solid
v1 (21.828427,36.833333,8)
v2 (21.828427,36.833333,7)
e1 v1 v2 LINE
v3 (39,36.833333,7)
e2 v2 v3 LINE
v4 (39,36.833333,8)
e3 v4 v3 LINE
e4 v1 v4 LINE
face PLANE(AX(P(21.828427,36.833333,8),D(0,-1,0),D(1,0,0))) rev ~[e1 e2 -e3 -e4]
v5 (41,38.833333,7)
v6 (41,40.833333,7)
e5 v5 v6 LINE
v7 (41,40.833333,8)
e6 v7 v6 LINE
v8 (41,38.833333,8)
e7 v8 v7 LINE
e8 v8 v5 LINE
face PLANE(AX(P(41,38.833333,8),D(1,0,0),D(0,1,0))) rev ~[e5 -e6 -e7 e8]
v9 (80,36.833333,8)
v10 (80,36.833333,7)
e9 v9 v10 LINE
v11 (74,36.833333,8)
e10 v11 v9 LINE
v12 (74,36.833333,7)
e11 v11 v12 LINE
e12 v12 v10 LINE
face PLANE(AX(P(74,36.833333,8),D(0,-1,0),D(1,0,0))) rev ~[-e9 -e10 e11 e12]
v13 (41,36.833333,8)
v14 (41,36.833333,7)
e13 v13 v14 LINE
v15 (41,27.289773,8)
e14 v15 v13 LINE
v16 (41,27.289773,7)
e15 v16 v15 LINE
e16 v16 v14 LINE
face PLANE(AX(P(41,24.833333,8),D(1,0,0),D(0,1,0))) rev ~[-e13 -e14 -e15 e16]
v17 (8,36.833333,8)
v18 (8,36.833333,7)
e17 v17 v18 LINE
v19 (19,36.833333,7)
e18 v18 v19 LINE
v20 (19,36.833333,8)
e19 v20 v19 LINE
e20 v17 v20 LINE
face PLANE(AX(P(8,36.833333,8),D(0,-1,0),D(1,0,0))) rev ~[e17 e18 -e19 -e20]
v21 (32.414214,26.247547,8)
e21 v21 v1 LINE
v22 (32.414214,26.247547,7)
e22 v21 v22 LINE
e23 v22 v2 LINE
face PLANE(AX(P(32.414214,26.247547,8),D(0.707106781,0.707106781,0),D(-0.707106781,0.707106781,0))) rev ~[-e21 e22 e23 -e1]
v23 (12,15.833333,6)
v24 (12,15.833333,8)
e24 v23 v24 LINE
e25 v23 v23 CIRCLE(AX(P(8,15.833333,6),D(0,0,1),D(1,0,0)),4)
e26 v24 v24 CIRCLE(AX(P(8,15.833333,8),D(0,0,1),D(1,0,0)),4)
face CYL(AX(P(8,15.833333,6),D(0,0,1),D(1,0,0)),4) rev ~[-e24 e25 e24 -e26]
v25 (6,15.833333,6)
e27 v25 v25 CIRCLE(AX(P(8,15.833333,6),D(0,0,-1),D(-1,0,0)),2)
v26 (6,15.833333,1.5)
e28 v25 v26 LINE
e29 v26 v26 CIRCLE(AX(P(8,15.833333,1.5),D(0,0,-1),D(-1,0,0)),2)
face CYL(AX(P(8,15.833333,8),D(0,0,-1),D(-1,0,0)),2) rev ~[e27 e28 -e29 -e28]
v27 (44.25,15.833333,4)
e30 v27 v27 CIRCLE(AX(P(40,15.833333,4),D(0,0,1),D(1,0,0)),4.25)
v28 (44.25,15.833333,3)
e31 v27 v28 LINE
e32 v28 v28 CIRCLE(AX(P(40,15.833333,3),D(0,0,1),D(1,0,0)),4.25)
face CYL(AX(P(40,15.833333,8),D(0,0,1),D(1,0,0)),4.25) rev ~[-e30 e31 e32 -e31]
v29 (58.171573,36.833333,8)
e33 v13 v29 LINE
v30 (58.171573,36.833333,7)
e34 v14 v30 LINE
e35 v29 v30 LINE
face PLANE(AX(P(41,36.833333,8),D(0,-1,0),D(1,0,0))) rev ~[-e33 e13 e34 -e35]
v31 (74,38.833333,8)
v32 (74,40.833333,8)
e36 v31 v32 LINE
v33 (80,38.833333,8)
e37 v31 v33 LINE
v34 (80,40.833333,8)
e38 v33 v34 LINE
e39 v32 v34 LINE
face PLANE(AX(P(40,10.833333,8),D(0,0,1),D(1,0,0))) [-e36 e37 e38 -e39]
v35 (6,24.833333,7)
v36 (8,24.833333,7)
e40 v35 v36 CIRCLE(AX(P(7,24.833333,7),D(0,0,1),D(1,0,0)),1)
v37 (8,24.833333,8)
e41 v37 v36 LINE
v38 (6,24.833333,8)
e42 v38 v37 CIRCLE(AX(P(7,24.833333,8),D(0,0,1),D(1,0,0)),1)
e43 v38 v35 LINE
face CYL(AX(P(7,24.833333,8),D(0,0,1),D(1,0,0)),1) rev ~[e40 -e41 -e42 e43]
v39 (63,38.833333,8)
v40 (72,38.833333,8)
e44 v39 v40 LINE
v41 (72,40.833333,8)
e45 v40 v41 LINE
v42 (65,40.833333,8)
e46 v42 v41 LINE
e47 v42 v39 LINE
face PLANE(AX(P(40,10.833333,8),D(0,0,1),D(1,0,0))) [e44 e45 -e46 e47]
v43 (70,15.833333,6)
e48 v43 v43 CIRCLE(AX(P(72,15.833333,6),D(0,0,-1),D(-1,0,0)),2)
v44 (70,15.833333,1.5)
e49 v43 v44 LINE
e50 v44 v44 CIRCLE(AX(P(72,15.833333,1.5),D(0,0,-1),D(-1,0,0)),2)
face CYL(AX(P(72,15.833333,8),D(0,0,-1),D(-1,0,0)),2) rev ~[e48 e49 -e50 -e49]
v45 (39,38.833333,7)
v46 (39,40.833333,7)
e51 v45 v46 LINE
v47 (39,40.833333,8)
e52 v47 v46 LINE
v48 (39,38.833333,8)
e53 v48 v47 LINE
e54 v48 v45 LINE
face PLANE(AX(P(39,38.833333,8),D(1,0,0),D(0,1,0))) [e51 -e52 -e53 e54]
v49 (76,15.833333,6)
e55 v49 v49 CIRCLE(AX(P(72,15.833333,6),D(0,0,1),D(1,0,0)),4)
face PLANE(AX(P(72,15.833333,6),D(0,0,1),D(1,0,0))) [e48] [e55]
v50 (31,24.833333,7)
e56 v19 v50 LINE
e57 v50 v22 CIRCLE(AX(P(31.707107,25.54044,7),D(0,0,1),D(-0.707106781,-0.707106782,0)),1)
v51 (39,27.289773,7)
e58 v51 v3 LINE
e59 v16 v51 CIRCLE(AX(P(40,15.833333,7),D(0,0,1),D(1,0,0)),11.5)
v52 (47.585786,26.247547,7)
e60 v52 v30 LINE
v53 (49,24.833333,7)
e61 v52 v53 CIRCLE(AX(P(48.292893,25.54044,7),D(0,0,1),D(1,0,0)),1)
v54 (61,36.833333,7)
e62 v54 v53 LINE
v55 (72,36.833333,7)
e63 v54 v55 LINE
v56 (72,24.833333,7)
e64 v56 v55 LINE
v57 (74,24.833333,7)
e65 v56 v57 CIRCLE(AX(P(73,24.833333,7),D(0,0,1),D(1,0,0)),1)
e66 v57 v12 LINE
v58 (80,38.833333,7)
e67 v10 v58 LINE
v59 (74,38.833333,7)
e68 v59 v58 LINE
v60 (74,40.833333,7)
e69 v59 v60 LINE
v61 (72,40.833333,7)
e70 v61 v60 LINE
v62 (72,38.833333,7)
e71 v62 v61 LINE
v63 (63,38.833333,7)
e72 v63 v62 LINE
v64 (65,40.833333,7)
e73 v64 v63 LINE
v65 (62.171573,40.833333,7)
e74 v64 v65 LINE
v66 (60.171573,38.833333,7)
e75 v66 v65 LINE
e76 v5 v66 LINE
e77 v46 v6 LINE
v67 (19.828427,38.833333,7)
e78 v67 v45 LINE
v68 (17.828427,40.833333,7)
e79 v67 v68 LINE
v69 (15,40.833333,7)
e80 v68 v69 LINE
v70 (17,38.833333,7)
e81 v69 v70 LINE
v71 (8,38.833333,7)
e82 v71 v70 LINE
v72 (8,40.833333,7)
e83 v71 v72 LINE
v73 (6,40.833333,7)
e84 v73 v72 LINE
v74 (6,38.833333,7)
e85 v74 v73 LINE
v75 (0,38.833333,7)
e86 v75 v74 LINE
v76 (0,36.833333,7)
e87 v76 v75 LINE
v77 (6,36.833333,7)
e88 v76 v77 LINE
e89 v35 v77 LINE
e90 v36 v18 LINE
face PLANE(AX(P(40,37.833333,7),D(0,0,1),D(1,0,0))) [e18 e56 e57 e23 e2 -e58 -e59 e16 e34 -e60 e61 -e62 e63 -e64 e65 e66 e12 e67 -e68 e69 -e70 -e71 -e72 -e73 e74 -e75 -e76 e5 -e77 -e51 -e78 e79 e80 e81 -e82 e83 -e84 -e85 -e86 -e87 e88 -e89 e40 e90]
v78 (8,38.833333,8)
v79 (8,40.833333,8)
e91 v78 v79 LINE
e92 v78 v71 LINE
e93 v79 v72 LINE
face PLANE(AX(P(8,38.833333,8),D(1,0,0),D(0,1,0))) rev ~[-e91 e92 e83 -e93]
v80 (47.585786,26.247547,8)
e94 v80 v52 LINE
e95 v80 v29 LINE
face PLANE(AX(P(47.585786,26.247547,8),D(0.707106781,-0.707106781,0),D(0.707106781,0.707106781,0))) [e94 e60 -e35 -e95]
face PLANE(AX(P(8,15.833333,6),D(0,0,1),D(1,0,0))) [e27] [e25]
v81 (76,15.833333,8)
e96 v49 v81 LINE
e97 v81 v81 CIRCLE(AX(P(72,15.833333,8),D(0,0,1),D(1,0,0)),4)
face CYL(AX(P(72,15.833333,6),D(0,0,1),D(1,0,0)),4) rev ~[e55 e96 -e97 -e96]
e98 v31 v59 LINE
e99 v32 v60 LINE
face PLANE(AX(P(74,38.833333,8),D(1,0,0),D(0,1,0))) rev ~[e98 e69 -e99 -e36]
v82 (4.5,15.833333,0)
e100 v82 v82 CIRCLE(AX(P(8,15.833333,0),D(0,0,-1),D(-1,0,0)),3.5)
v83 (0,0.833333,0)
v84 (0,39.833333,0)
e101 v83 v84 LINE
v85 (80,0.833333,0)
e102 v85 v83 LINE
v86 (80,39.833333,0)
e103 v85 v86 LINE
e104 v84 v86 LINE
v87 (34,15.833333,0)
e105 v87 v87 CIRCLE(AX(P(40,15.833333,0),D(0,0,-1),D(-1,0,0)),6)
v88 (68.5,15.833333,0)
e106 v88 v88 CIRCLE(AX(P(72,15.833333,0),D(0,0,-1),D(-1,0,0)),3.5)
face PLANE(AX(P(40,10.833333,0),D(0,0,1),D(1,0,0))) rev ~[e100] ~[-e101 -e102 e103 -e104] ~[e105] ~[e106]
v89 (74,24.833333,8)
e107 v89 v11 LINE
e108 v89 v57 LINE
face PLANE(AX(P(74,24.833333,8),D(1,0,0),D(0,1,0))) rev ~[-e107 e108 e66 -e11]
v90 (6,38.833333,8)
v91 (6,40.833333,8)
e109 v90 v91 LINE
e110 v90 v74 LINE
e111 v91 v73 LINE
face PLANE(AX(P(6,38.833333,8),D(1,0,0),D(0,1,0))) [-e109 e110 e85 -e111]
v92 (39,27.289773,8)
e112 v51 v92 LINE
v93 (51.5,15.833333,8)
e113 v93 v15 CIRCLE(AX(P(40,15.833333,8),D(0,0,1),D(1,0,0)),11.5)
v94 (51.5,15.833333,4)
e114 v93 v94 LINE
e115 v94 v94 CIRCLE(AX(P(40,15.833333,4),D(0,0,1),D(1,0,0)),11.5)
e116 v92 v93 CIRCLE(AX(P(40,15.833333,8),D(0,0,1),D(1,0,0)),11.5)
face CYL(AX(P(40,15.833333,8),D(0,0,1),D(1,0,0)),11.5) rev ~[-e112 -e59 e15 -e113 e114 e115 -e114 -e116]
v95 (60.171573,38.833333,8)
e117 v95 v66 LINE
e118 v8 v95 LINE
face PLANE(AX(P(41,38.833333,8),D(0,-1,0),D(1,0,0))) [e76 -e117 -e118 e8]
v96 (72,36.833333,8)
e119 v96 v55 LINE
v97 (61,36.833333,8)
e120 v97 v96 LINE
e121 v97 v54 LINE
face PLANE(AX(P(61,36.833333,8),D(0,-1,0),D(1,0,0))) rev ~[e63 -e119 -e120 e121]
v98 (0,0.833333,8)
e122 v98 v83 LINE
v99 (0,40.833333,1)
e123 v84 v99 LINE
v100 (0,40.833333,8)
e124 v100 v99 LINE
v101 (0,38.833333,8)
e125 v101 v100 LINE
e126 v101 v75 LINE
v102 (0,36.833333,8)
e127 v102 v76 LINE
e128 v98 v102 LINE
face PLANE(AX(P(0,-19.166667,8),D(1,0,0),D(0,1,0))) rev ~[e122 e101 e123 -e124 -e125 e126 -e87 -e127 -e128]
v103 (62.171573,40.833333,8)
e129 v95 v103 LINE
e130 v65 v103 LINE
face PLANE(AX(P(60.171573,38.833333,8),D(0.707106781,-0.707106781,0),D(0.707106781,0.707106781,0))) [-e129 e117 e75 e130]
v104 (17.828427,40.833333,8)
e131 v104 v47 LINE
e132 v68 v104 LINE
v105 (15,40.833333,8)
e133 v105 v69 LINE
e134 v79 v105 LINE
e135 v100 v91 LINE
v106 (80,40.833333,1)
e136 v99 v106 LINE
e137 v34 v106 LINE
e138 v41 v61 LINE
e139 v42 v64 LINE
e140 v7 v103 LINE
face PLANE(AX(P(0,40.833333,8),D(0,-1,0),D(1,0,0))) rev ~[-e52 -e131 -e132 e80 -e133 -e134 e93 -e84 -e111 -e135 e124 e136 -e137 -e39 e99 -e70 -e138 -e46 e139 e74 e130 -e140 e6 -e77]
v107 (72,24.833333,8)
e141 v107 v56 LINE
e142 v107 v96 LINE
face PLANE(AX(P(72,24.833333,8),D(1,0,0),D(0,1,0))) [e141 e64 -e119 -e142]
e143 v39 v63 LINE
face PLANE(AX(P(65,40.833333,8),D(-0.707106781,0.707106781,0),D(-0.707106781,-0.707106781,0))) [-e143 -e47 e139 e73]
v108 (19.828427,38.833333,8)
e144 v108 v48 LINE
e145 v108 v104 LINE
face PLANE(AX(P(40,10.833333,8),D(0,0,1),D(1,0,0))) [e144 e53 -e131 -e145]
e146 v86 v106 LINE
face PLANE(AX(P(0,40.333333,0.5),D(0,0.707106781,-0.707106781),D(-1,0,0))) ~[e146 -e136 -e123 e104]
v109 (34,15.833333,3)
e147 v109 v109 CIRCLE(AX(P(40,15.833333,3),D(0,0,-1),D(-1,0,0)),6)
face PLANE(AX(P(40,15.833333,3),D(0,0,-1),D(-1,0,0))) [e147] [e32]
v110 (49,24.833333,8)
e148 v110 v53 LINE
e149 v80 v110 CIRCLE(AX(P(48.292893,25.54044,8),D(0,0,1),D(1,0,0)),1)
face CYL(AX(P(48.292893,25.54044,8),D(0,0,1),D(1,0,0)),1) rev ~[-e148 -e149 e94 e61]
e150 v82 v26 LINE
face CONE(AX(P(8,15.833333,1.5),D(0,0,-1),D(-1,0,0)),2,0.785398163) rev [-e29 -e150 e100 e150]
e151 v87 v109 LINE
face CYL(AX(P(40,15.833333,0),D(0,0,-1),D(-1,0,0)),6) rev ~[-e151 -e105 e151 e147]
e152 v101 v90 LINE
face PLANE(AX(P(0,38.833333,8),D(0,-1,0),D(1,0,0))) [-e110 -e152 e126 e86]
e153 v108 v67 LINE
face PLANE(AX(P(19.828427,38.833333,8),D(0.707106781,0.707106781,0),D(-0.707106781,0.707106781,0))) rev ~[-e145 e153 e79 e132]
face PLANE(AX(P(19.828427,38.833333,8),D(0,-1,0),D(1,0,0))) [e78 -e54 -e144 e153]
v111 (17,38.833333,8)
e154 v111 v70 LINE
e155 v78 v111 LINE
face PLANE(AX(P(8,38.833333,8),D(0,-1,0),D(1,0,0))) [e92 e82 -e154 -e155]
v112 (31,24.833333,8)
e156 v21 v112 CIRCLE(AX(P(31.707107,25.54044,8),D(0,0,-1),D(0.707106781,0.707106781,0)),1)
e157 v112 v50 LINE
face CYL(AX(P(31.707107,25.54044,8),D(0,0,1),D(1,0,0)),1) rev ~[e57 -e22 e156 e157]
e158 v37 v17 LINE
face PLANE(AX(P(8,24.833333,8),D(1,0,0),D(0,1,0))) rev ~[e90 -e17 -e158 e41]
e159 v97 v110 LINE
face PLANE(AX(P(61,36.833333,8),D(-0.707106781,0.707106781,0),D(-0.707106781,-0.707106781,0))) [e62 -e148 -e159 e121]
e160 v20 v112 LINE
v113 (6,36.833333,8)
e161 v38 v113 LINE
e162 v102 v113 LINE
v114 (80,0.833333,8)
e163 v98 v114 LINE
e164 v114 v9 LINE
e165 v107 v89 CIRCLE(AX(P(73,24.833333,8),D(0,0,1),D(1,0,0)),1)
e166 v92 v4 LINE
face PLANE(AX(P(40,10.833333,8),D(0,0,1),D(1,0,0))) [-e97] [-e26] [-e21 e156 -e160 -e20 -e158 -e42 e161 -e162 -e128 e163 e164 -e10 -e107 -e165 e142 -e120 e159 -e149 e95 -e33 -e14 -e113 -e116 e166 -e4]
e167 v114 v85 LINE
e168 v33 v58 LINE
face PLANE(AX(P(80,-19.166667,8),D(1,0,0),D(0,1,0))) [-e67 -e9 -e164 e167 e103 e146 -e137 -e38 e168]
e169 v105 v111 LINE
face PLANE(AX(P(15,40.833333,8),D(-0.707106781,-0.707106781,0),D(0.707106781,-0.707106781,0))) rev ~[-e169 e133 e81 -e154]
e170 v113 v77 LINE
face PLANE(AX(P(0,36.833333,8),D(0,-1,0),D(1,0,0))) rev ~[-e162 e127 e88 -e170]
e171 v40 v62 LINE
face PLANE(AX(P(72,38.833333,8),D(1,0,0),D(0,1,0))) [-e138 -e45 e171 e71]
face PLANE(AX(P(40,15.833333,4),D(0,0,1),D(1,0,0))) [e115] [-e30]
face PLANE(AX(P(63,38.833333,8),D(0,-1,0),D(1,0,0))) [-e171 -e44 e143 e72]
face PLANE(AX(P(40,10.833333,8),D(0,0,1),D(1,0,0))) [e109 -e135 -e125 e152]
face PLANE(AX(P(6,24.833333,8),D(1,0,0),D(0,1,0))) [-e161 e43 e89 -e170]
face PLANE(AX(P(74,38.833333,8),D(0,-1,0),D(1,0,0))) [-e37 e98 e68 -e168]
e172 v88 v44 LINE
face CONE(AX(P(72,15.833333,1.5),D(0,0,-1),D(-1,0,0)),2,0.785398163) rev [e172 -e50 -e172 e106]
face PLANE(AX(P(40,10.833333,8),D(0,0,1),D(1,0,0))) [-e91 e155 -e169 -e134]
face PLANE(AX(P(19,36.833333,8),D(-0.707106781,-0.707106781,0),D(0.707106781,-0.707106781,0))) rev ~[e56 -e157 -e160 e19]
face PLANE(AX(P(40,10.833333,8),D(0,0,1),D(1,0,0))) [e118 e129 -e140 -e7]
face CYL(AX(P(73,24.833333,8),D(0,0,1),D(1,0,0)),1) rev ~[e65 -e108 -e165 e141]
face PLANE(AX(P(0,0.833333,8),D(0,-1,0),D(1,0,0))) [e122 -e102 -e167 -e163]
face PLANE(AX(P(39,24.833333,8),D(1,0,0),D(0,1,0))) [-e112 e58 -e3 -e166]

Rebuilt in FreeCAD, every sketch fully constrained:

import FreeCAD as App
import Part
import Sketcher

V = App.Vector


def edges_at(feature, points):
    """Names of the edges that pass closest to the given points."""
    edges = feature.Shape.Edges
    near = lambda p: min(range(len(edges)), key=lambda i: edges[i].distToShape(Part.Vertex(*p))[0])
    return sorted({f"Edge{near(p) + 1}" for p in points})

doc = App.newDocument("Part")
body = doc.addObject("PartDesign::Body", "Body")

# Sketch on XY plane
sketch1 = doc.addObject("Sketcher::SketchObject", "Sketch")
body.addObject(sketch1)
sketch1.AttachmentSupport = (doc.XY_Plane, [""])
sketch1.MapMode = "FlatFace"
sketch1.AttachmentOffset = App.Placement(V(0, 0, 8), App.Rotation())
sketch1.addGeometry(Part.LineSegment(V(0, 41, 0), V(0, -19, 0)), False)
sketch1.addGeometry(Part.LineSegment(V(0, -19, 0), V(80, -19, 0)), False)
sketch1.addGeometry(Part.LineSegment(V(80, -19, 0), V(80, 41, 0)), False)
sketch1.addGeometry(Part.LineSegment(V(80, 41, 0), V(0, 41, 0)), False)
sketch1.addConstraint(Sketcher.Constraint("Coincident", 0, 2, 1, 1))
sketch1.addConstraint(Sketcher.Constraint("Coincident", 1, 2, 2, 1))
sketch1.addConstraint(Sketcher.Constraint("Coincident", 2, 2, 3, 1))
sketch1.addConstraint(Sketcher.Constraint("Coincident", 3, 2, 0, 1))
sketch1.addConstraint(Sketcher.Constraint("Vertical", 0))
sketch1.addConstraint(Sketcher.Constraint("Horizontal", 1))
sketch1.addConstraint(Sketcher.Constraint("Vertical", 2))
sketch1.addConstraint(Sketcher.Constraint("Horizontal", 3))
sketch1.addConstraint(Sketcher.Constraint("PointOnObject", 0, 2, -2))
sketch1.addConstraint(Sketcher.Constraint("DistanceX", 1, 1, 1, 2, 80.0))
sketch1.addConstraint(Sketcher.Constraint("DistanceY", 0, 2, 0, 1, 60.0))
sketch1.addConstraint(Sketcher.Constraint("DistanceY", 0, 2, -1, 1, 19.166667))
pad1 = doc.addObject("PartDesign::Pad", "Pad")
body.addObject(pad1)
pad1.Profile = sketch1
pad1.Length = 8
pad1.Reversed = True

# Sketch on XY plane
sketch2 = doc.addObject("Sketcher::SketchObject", "Sketch001")
body.addObject(sketch2)
sketch2.AttachmentSupport = (doc.XY_Plane, [""])
sketch2.MapMode = "FlatFace"
sketch2.AttachmentOffset = App.Placement(V(0, 0, 8), App.Rotation())
sketch2.addGeometry(Part.Circle(V(8, 15.8, 0), V(0, 0, 1), 2), False)
sketch2.addGeometry(Part.Circle(V(72, 15.8, 0), V(0, 0, 1), 2), False)
sketch2.addConstraint(Sketcher.Constraint("Equal", 0, 1))
sketch2.addConstraint(Sketcher.Constraint("Horizontal", 0, 3, 1, 3))
sketch2.addConstraint(Sketcher.Constraint("Diameter", 0, 4.0))
sketch2.addConstraint(Sketcher.Constraint("DistanceX", -1, 1, 0, 3, 8.0))
sketch2.addConstraint(Sketcher.Constraint("DistanceX", -1, 1, 1, 3, 72.0))
sketch2.addConstraint(Sketcher.Constraint("DistanceY", -1, 1, 0, 3, 15.833333))
doc.recompute()
hole = doc.addObject("PartDesign::Hole", "Hole")
body.addObject(hole)
hole.Profile = sketch2
hole.ThreadType = "None"
hole.Diameter = 4
hole.DepthType = "ThroughAll"
hole.HoleCutType = "Counterbore"
hole.HoleCutDiameter = 8
hole.HoleCutDepth = 2

# Sketch on XY plane
sketch3 = doc.addObject("Sketcher::SketchObject", "Sketch002")
body.addObject(sketch3)
sketch3.AttachmentSupport = (doc.XY_Plane, [""])
sketch3.MapMode = "FlatFace"
sketch3.AttachmentOffset = App.Placement(V(0, 0, 8), App.Rotation())
sketch3.addGeometry(Part.LineSegment(V(0, 38.8, 0), V(0, 36.8, 0)), False)
sketch3.addGeometry(Part.LineSegment(V(0, 36.8, 0), V(6, 36.8, 0)), False)
sketch3.addGeometry(Part.LineSegment(V(6, 36.8, 0), V(6, 24.8, 0)), False)
sketch3.addGeometry(Part.LineSegment(V(6, 24.8, 0), V(8, 24.8, 0)), False)
sketch3.addGeometry(Part.LineSegment(V(8, 24.8, 0), V(8, 36.8, 0)), False)
sketch3.addGeometry(Part.LineSegment(V(8, 36.8, 0), V(19, 36.8, 0)), False)
sketch3.addGeometry(Part.LineSegment(V(19, 36.8, 0), V(31, 24.8, 0)), False)
sketch3.addGeometry(Part.LineSegment(V(31, 24.8, 0), V(32.4, 26.2, 0)), False)
sketch3.addGeometry(Part.LineSegment(V(32.4, 26.2, 0), V(21.8, 36.8, 0)), False)
sketch3.addGeometry(Part.LineSegment(V(21.8, 36.8, 0), V(39, 36.8, 0)), False)
sketch3.addGeometry(Part.LineSegment(V(39, 36.8, 0), V(39, 24.8, 0)), False)
sketch3.addGeometry(Part.LineSegment(V(39, 24.8, 0), V(41, 24.8, 0)), False)
sketch3.addGeometry(Part.LineSegment(V(41, 24.8, 0), V(41, 36.8, 0)), False)
sketch3.addGeometry(Part.LineSegment(V(41, 36.8, 0), V(58.2, 36.8, 0)), False)
sketch3.addGeometry(Part.LineSegment(V(58.2, 36.8, 0), V(47.6, 26.2, 0)), False)
sketch3.addGeometry(Part.LineSegment(V(47.6, 26.2, 0), V(49, 24.8, 0)), False)
sketch3.addGeometry(Part.LineSegment(V(49, 24.8, 0), V(61, 36.8, 0)), False)
sketch3.addGeometry(Part.LineSegment(V(61, 36.8, 0), V(72, 36.8, 0)), False)
sketch3.addGeometry(Part.LineSegment(V(72, 36.8, 0), V(72, 24.8, 0)), False)
sketch3.addGeometry(Part.LineSegment(V(72, 24.8, 0), V(74, 24.8, 0)), False)
sketch3.addGeometry(Part.LineSegment(V(74, 24.8, 0), V(74, 36.8, 0)), False)
sketch3.addGeometry(Part.LineSegment(V(74, 36.8, 0), V(80, 36.8, 0)), False)
sketch3.addGeometry(Part.LineSegment(V(80, 36.8, 0), V(80, 38.8, 0)), False)
sketch3.addGeometry(Part.LineSegment(V(80, 38.8, 0), V(74, 38.8, 0)), False)
sketch3.addGeometry(Part.LineSegment(V(74, 38.8, 0), V(74, 40.8, 0)), False)
sketch3.addGeometry(Part.LineSegment(V(74, 40.8, 0), V(72, 40.8, 0)), False)
sketch3.addGeometry(Part.LineSegment(V(72, 40.8, 0), V(72, 38.8, 0)), False)
sketch3.addGeometry(Part.LineSegment(V(72, 38.8, 0), V(63, 38.8, 0)), False)
sketch3.addGeometry(Part.LineSegment(V(63, 38.8, 0), V(65, 40.8, 0)), False)
sketch3.addGeometry(Part.LineSegment(V(65, 40.8, 0), V(63.6, 42.2, 0)), False)
sketch3.addGeometry(Part.LineSegment(V(63.6, 42.2, 0), V(60.2, 38.8, 0)), False)
sketch3.addGeometry(Part.LineSegment(V(60.2, 38.8, 0), V(41, 38.8, 0)), False)
sketch3.addGeometry(Part.LineSegment(V(41, 38.8, 0), V(41, 40.8, 0)), False)
sketch3.addGeometry(Part.LineSegment(V(41, 40.8, 0), V(39, 40.8, 0)), False)
sketch3.addGeometry(Part.LineSegment(V(39, 40.8, 0), V(39, 38.8, 0)), False)
sketch3.addGeometry(Part.LineSegment(V(39, 38.8, 0), V(19.8, 38.8, 0)), False)
sketch3.addGeometry(Part.LineSegment(V(19.8, 38.8, 0), V(16.4, 42.2, 0)), False)
sketch3.addGeometry(Part.LineSegment(V(16.4, 42.2, 0), V(15, 40.8, 0)), False)
sketch3.addGeometry(Part.LineSegment(V(15, 40.8, 0), V(17, 38.8, 0)), False)
sketch3.addGeometry(Part.LineSegment(V(17, 38.8, 0), V(8, 38.8, 0)), False)
sketch3.addGeometry(Part.LineSegment(V(8, 38.8, 0), V(8, 40.8, 0)), False)
sketch3.addGeometry(Part.LineSegment(V(8, 40.8, 0), V(6, 40.8, 0)), False)
sketch3.addGeometry(Part.LineSegment(V(6, 40.8, 0), V(6, 38.8, 0)), False)
sketch3.addGeometry(Part.LineSegment(V(6, 38.8, 0), V(0, 38.8, 0)), False)
sketch3.addConstraint(Sketcher.Constraint("Coincident", 0, 2, 1, 1))
sketch3.addConstraint(Sketcher.Constraint("Coincident", 1, 2, 2, 1))
sketch3.addConstraint(Sketcher.Constraint("Coincident", 2, 2, 3, 1))
sketch3.addConstraint(Sketcher.Constraint("Coincident", 3, 2, 4, 1))
sketch3.addConstraint(Sketcher.Constraint("Coincident", 4, 2, 5, 1))
sketch3.addConstraint(Sketcher.Constraint("Coincident", 5, 2, 6, 1))
sketch3.addConstraint(Sketcher.Constraint("Coincident", 6, 2, 7, 1))
sketch3.addConstraint(Sketcher.Constraint("Coincident", 7, 2, 8, 1))
sketch3.addConstraint(Sketcher.Constraint("Coincident", 8, 2, 9, 1))
sketch3.addConstraint(Sketcher.Constraint("Coincident", 9, 2, 10, 1))
sketch3.addConstraint(Sketcher.Constraint("Coincident", 10, 2, 11, 1))
sketch3.addConstraint(Sketcher.Constraint("Coincident", 11, 2, 12, 1))
sketch3.addConstraint(Sketcher.Constraint("Coincident", 12, 2, 13, 1))
sketch3.addConstraint(Sketcher.Constraint("Coincident", 13, 2, 14, 1))
sketch3.addConstraint(Sketcher.Constraint("Coincident", 14, 2, 15, 1))
sketch3.addConstraint(Sketcher.Constraint("Coincident", 15, 2, 16, 1))
sketch3.addConstraint(Sketcher.Constraint("Coincident", 16, 2, 17, 1))
sketch3.addConstraint(Sketcher.Constraint("Coincident", 17, 2, 18, 1))
sketch3.addConstraint(Sketcher.Constraint("Coincident", 18, 2, 19, 1))
sketch3.addConstraint(Sketcher.Constraint("Coincident", 19, 2, 20, 1))
sketch3.addConstraint(Sketcher.Constraint("Coincident", 20, 2, 21, 1))
sketch3.addConstraint(Sketcher.Constraint("Coincident", 21, 2, 22, 1))
sketch3.addConstraint(Sketcher.Constraint("Coincident", 22, 2, 23, 1))
sketch3.addConstraint(Sketcher.Constraint("Coincident", 23, 2, 24, 1))
sketch3.addConstraint(Sketcher.Constraint("Coincident", 24, 2, 25, 1))
sketch3.addConstraint(Sketcher.Constraint("Coincident", 25, 2, 26, 1))
sketch3.addConstraint(Sketcher.Constraint("Coincident", 26, 2, 27, 1))
sketch3.addConstraint(Sketcher.Constraint("Coincident", 27, 2, 28, 1))
sketch3.addConstraint(Sketcher.Constraint("Coincident", 28, 2, 29, 1))
sketch3.addConstraint(Sketcher.Constraint("Coincident", 29, 2, 30, 1))
sketch3.addConstraint(Sketcher.Constraint("Coincident", 30, 2, 31, 1))
sketch3.addConstraint(Sketcher.Constraint("Coincident", 31, 2, 32, 1))
sketch3.addConstraint(Sketcher.Constraint("Coincident", 32, 2, 33, 1))
sketch3.addConstraint(Sketcher.Constraint("Coincident", 33, 2, 34, 1))
sketch3.addConstraint(Sketcher.Constraint("Coincident", 34, 2, 35, 1))
sketch3.addConstraint(Sketcher.Constraint("Coincident", 35, 2, 36, 1))
sketch3.addConstraint(Sketcher.Constraint("Coincident", 36, 2, 37, 1))
sketch3.addConstraint(Sketcher.Constraint("Coincident", 37, 2, 38, 1))
sketch3.addConstraint(Sketcher.Constraint("Coincident", 38, 2, 39, 1))
sketch3.addConstraint(Sketcher.Constraint("Coincident", 39, 2, 40, 1))
sketch3.addConstraint(Sketcher.Constraint("Coincident", 40, 2, 41, 1))
sketch3.addConstraint(Sketcher.Constraint("Coincident", 41, 2, 42, 1))
sketch3.addConstraint(Sketcher.Constraint("Coincident", 42, 2, 43, 1))
sketch3.addConstraint(Sketcher.Constraint("Coincident", 43, 2, 0, 1))
sketch3.addConstraint(Sketcher.Constraint("Vertical", 0))
sketch3.addConstraint(Sketcher.Constraint("Horizontal", 1))
sketch3.addConstraint(Sketcher.Constraint("Vertical", 2))
sketch3.addConstraint(Sketcher.Constraint("Horizontal", 3))
sketch3.addConstraint(Sketcher.Constraint("Vertical", 4))
sketch3.addConstraint(Sketcher.Constraint("Horizontal", 5))
sketch3.addConstraint(Sketcher.Constraint("Horizontal", 9))
sketch3.addConstraint(Sketcher.Constraint("Vertical", 10))
sketch3.addConstraint(Sketcher.Constraint("Horizontal", 11))
sketch3.addConstraint(Sketcher.Constraint("Vertical", 12))
sketch3.addConstraint(Sketcher.Constraint("Horizontal", 13))
sketch3.addConstraint(Sketcher.Constraint("Horizontal", 17))
sketch3.addConstraint(Sketcher.Constraint("Vertical", 18))
sketch3.addConstraint(Sketcher.Constraint("Horizontal", 19))
sketch3.addConstraint(Sketcher.Constraint("Vertical", 20))
sketch3.addConstraint(Sketcher.Constraint("Horizontal", 21))
sketch3.addConstraint(Sketcher.Constraint("Vertical", 22))
sketch3.addConstraint(Sketcher.Constraint("Horizontal", 23))
sketch3.addConstraint(Sketcher.Constraint("Vertical", 24))
sketch3.addConstraint(Sketcher.Constraint("Horizontal", 25))
sketch3.addConstraint(Sketcher.Constraint("Vertical", 26))
sketch3.addConstraint(Sketcher.Constraint("Horizontal", 27))
sketch3.addConstraint(Sketcher.Constraint("Horizontal", 31))
sketch3.addConstraint(Sketcher.Constraint("Vertical", 32))
sketch3.addConstraint(Sketcher.Constraint("Horizontal", 33))
sketch3.addConstraint(Sketcher.Constraint("Vertical", 34))
sketch3.addConstraint(Sketcher.Constraint("Horizontal", 35))
sketch3.addConstraint(Sketcher.Constraint("Horizontal", 39))
sketch3.addConstraint(Sketcher.Constraint("Vertical", 40))
sketch3.addConstraint(Sketcher.Constraint("Horizontal", 41))
sketch3.addConstraint(Sketcher.Constraint("Vertical", 42))
sketch3.addConstraint(Sketcher.Constraint("Horizontal", 43))
sketch3.addConstraint(Sketcher.Constraint("PointOnObject", 0, 2, -2))
sketch3.addConstraint(Sketcher.Constraint("Perpendicular", 6, 7))
sketch3.addConstraint(Sketcher.Constraint("Perpendicular", 7, 8))
sketch3.addConstraint(Sketcher.Constraint("Perpendicular", 8, 14))
sketch3.addConstraint(Sketcher.Constraint("Perpendicular", 14, 15))
sketch3.addConstraint(Sketcher.Constraint("Perpendicular", 15, 16))
sketch3.addConstraint(Sketcher.Constraint("Parallel", 16, 28))
sketch3.addConstraint(Sketcher.Constraint("Perpendicular", 28, 29))
sketch3.addConstraint(Sketcher.Constraint("Perpendicular", 29, 30))
sketch3.addConstraint(Sketcher.Constraint("Perpendicular", 30, 36))
sketch3.addConstraint(Sketcher.Constraint("Perpendicular", 36, 37))
sketch3.addConstraint(Sketcher.Constraint("Perpendicular", 37, 38))
sketch3.addConstraint(Sketcher.Constraint("Horizontal", 1, 2, 4, 2))
sketch3.addConstraint(Sketcher.Constraint("Horizontal", 3, 2, 6, 2))
sketch3.addConstraint(Sketcher.Constraint("Horizontal", 5, 2, 8, 2))
sketch3.addConstraint(Sketcher.Constraint("Horizontal", 6, 2, 10, 2))
sketch3.addConstraint(Sketcher.Constraint("Horizontal", 9, 2, 12, 2))
sketch3.addConstraint(Sketcher.Constraint("Horizontal", 7, 2, 14, 2))
sketch3.addConstraint(Sketcher.Constraint("Horizontal", 11, 2, 15, 2))
sketch3.addConstraint(Sketcher.Constraint("Horizontal", 13, 2, 16, 2))
sketch3.addConstraint(Sketcher.Constraint("Horizontal", 15, 2, 18, 2))
sketch3.addConstraint(Sketcher.Constraint("Horizontal", 17, 2, 20, 2))
sketch3.addConstraint(Sketcher.Constraint("Horizontal", 23, 2, 26, 2))
sketch3.addConstraint(Sketcher.Constraint("Horizontal", 25, 2, 28, 2))
sketch3.addConstraint(Sketcher.Constraint("Horizontal", 27, 2, 30, 2))
sketch3.addConstraint(Sketcher.Constraint("Horizontal", 28, 2, 32, 2))
sketch3.addConstraint(Sketcher.Constraint("Horizontal", 31, 2, 34, 2))
sketch3.addConstraint(Sketcher.Constraint("Horizontal", 29, 2, 36, 2))
sketch3.addConstraint(Sketcher.Constraint("Horizontal", 33, 2, 37, 2))
sketch3.addConstraint(Sketcher.Constraint("Horizontal", 35, 2, 38, 2))
sketch3.addConstraint(Sketcher.Constraint("Horizontal", 37, 2, 40, 2))
sketch3.addConstraint(Sketcher.Constraint("Horizontal", 39, 2, 42, 2))
sketch3.addConstraint(Sketcher.Constraint("Vertical", 20, 2, 23, 2))
sketch3.addConstraint(Sketcher.Constraint("Vertical", 18, 2, 25, 2))
sketch3.addConstraint(Sketcher.Constraint("Vertical", 12, 2, 31, 2))
sketch3.addConstraint(Sketcher.Constraint("Vertical", 10, 2, 33, 2))
sketch3.addConstraint(Sketcher.Constraint("Vertical", 4, 2, 39, 2))
sketch3.addConstraint(Sketcher.Constraint("Vertical", 2, 2, 41, 2))
sketch3.addConstraint(Sketcher.Constraint("Equal", 3, 11))
sketch3.addConstraint(Sketcher.Constraint("Equal", 9, 13))
sketch3.addConstraint(Sketcher.Constraint("Equal", 5, 17))
sketch3.addConstraint(Sketcher.Constraint("Equal", 11, 19))
sketch3.addConstraint(Sketcher.Constraint("Equal", 1, 21))
sketch3.addConstraint(Sketcher.Constraint("Equal", 31, 35))
sketch3.addConstraint(Sketcher.Constraint("Equal", 41, 0))
sketch3.addConstraint(Sketcher.Constraint("Equal", 22, 24))
sketch3.addConstraint(Sketcher.Constraint("Equal", 8, 14))
sketch3.addConstraint(Sketcher.Constraint("Equal", 15, 29))
sketch3.addConstraint(Sketcher.Constraint("DistanceX", 1, 1, 1, 2, 6.0))
sketch3.addConstraint(Sketcher.Constraint("DistanceX", 3, 1, 3, 2, 2.0))
sketch3.addConstraint(Sketcher.Constraint("DistanceX", 5, 1, 5, 2, 11.0))
sketch3.addConstraint(Sketcher.Constraint("DistanceX", 27, 2, 27, 1, 9.0))
sketch3.addConstraint(Sketcher.Constraint("DistanceY", 2, 2, 2, 1, 12.0))
sketch3.addConstraint(Sketcher.Constraint("Distance", 7, 2.0))
sketch3.addConstraint(Sketcher.Constraint("DistanceX", -1, 1, 9, 2, 39.0))
sketch3.addConstraint(Sketcher.Constraint("DistanceY", -1, 1, 0, 2, 36.833333))
pocket1 = doc.addObject("PartDesign::Pocket", "Pocket")
body.addObject(pocket1)
pocket1.Profile = sketch3
pocket1.Length = 1

# Sketch on XY plane
sketch4 = doc.addObject("Sketcher::SketchObject", "Sketch003")
body.addObject(sketch4)
sketch4.AttachmentSupport = (doc.XY_Plane, [""])
sketch4.MapMode = "FlatFace"
sketch4.AttachmentOffset = App.Placement(V(0, 0, 8), App.Rotation())
sketch4.addGeometry(Part.Circle(V(40, 15.8, 0), V(0, 0, 1), 4.2), False)
sketch4.addConstraint(Sketcher.Constraint("Diameter", 0, 8.5))
sketch4.addConstraint(Sketcher.Constraint("DistanceX", -1, 1, 0, 3, 40.0))
sketch4.addConstraint(Sketcher.Constraint("DistanceY", -1, 1, 0, 3, 15.833333))
pocket2 = doc.addObject("PartDesign::Pocket", "Pocket001")
body.addObject(pocket2)
pocket2.Profile = sketch4
pocket2.Type = "UpToFirst"

# Sketch on XY plane
sketch5 = doc.addObject("Sketcher::SketchObject", "Sketch004")
body.addObject(sketch5)
sketch5.AttachmentSupport = (doc.XY_Plane, [""])
sketch5.MapMode = "FlatFace"
sketch5.AttachmentOffset = App.Placement(V(0, 0, 8), App.Rotation())
sketch5.addGeometry(Part.Circle(V(40, 16, 0), V(0, 0, 1), 12), False)
sketch5.addConstraint(Sketcher.Constraint("Diameter", 0, 23.0))
sketch5.addConstraint(Sketcher.Constraint("DistanceX", -1, 1, 0, 3, 40.0))
sketch5.addConstraint(Sketcher.Constraint("DistanceY", -1, 1, 0, 3, 15.833333))
pocket3 = doc.addObject("PartDesign::Pocket", "Pocket002")
body.addObject(pocket3)
pocket3.Profile = sketch5
pocket3.Length = 4

# Sketch on XY plane
sketch6 = doc.addObject("Sketcher::SketchObject", "Sketch005")
body.addObject(sketch6)
sketch6.AttachmentSupport = (doc.XY_Plane, [""])
sketch6.MapMode = "FlatFace"
sketch6.addGeometry(Part.Circle(V(40, 16, 0), V(0, 0, 1), 6), False)
sketch6.addConstraint(Sketcher.Constraint("Diameter", 0, 12.0))
sketch6.addConstraint(Sketcher.Constraint("DistanceX", -1, 1, 0, 3, 40.0))
sketch6.addConstraint(Sketcher.Constraint("DistanceY", -1, 1, 0, 3, 15.833333))
pocket4 = doc.addObject("PartDesign::Pocket", "Pocket003")
body.addObject(pocket4)
pocket4.Profile = sketch6
pocket4.Length = 3
pocket4.Reversed = True
doc.recompute()

chamfer = doc.addObject("PartDesign::Chamfer", "Chamfer")
body.addObject(chamfer)
chamfer.Base = (pocket4, edges_at(pocket4, [(74, 15.833, 0), (10, 15.833, 0)]))
chamfer.ChamferType = "Two distances"
chamfer.Size = 1.5
chamfer.Size2 = 1.5
doc.recompute()

chamfer2 = doc.addObject("PartDesign::Chamfer", "Chamfer001")
body.addObject(chamfer2)
chamfer2.Base = (chamfer, edges_at(chamfer, [(40, 40.833, 0)]))
chamfer2.Size = 1

# Sketch on XY plane
sketch7 = doc.addObject("Sketcher::SketchObject", "Sketch006")
body.addObject(sketch7)
sketch7.AttachmentSupport = (doc.XY_Plane, [""])
sketch7.MapMode = "FlatFace"
sketch7.AttachmentOffset = App.Placement(V(0, 0, 8), App.Rotation())
sketch7.addGeometry(Part.LineSegment(V(0, -13, 0), V(0, -19, 0)), False)
sketch7.addGeometry(Part.LineSegment(V(0, -19, 0), V(80, -19, 0)), False)
sketch7.addGeometry(Part.LineSegment(V(80, -19, 0), V(80, -13, 0)), False)
sketch7.addGeometry(Part.LineSegment(V(80, -13, 0), V(0, -13, 0)), False)
sketch7.addConstraint(Sketcher.Constraint("Coincident", 0, 2, 1, 1))
sketch7.addConstraint(Sketcher.Constraint("Coincident", 1, 2, 2, 1))
sketch7.addConstraint(Sketcher.Constraint("Coincident", 2, 2, 3, 1))
sketch7.addConstraint(Sketcher.Constraint("Coincident", 3, 2, 0, 1))
sketch7.addConstraint(Sketcher.Constraint("Vertical", 0))
sketch7.addConstraint(Sketcher.Constraint("Horizontal", 1))
sketch7.addConstraint(Sketcher.Constraint("Vertical", 2))
sketch7.addConstraint(Sketcher.Constraint("Horizontal", 3))
sketch7.addConstraint(Sketcher.Constraint("PointOnObject", 0, 2, -2))
sketch7.addConstraint(Sketcher.Constraint("DistanceX", 1, 1, 1, 2, 80.0))
sketch7.addConstraint(Sketcher.Constraint("DistanceY", 0, 2, 0, 1, 6.0))
sketch7.addConstraint(Sketcher.Constraint("DistanceY", 0, 2, -1, 1, 19.166667))
pocket5 = doc.addObject("PartDesign::Pocket", "Pocket004")
body.addObject(pocket5)
pocket5.Profile = sketch7
pocket5.Length = 1

# Sketch on XY plane
sketch8 = doc.addObject("Sketcher::SketchObject", "Sketch007")
body.addObject(sketch8)
sketch8.AttachmentSupport = (doc.XY_Plane, [""])
sketch8.MapMode = "FlatFace"
sketch8.AttachmentOffset = App.Placement(V(0, 0, 7), App.Rotation())
sketch8.addGeometry(Part.LineSegment(V(0, -15.2, 0), V(0, -19.2, 0)), False)
sketch8.addGeometry(Part.LineSegment(V(0, -19.2, 0), V(80, -19.2, 0)), False)
sketch8.addGeometry(Part.LineSegment(V(80, -19.2, 0), V(80, -15.2, 0)), False)
sketch8.addGeometry(Part.LineSegment(V(80, -15.2, 0), V(0, -15.2, 0)), False)
sketch8.addConstraint(Sketcher.Constraint("Coincident", 0, 2, 1, 1))
sketch8.addConstraint(Sketcher.Constraint("Coincident", 1, 2, 2, 1))
sketch8.addConstraint(Sketcher.Constraint("Coincident", 2, 2, 3, 1))
sketch8.addConstraint(Sketcher.Constraint("Coincident", 3, 2, 0, 1))
sketch8.addConstraint(Sketcher.Constraint("Vertical", 0))
sketch8.addConstraint(Sketcher.Constraint("Horizontal", 1))
sketch8.addConstraint(Sketcher.Constraint("Vertical", 2))
sketch8.addConstraint(Sketcher.Constraint("Horizontal", 3))
sketch8.addConstraint(Sketcher.Constraint("PointOnObject", 0, 2, -2))
sketch8.addConstraint(Sketcher.Constraint("DistanceX", 1, 1, 1, 2, 80.0))
sketch8.addConstraint(Sketcher.Constraint("DistanceY", 0, 2, 0, 1, 4.0))
sketch8.addConstraint(Sketcher.Constraint("DistanceY", 0, 2, -1, 1, 19.166667))
pocket6 = doc.addObject("PartDesign::Pocket", "Pocket005")
body.addObject(pocket6)
pocket6.Profile = sketch8
pocket6.Length = 1

# Sketch on XY plane
sketch9 = doc.addObject("Sketcher::SketchObject", "Sketch008")
body.addObject(sketch9)
sketch9.AttachmentSupport = (doc.XY_Plane, [""])
sketch9.MapMode = "FlatFace"
sketch9.AttachmentOffset = App.Placement(V(0, 0, 6), App.Rotation())
sketch9.addGeometry(Part.LineSegment(V(0, -17.2, 0), V(0, -19.2, 0)), False)
sketch9.addGeometry(Part.LineSegment(V(0, -19.2, 0), V(80, -19.2, 0)), False)
sketch9.addGeometry(Part.LineSegment(V(80, -19.2, 0), V(80, -17.2, 0)), False)
sketch9.addGeometry(Part.LineSegment(V(80, -17.2, 0), V(0, -17.2, 0)), False)
sketch9.addConstraint(Sketcher.Constraint("Coincident", 0, 2, 1, 1))
sketch9.addConstraint(Sketcher.Constraint("Coincident", 1, 2, 2, 1))
sketch9.addConstraint(Sketcher.Constraint("Coincident", 2, 2, 3, 1))
sketch9.addConstraint(Sketcher.Constraint("Coincident", 3, 2, 0, 1))
sketch9.addConstraint(Sketcher.Constraint("Vertical", 0))
sketch9.addConstraint(Sketcher.Constraint("Horizontal", 1))
sketch9.addConstraint(Sketcher.Constraint("Vertical", 2))
sketch9.addConstraint(Sketcher.Constraint("Horizontal", 3))
sketch9.addConstraint(Sketcher.Constraint("PointOnObject", 0, 2, -2))
sketch9.addConstraint(Sketcher.Constraint("DistanceX", 1, 1, 1, 2, 80.0))
sketch9.addConstraint(Sketcher.Constraint("DistanceY", 0, 2, 0, 1, 2.0))
sketch9.addConstraint(Sketcher.Constraint("DistanceY", 0, 2, -1, 1, 19.166667))
pocket7 = doc.addObject("PartDesign::Pocket", "Pocket006")
body.addObject(pocket7)
pocket7.Profile = sketch9
pocket7.Length = 1

# Sketch on XY plane
sketch10 = doc.addObject("Sketcher::SketchObject", "Sketch009")
body.addObject(sketch10)
sketch10.AttachmentSupport = (doc.XY_Plane, [""])
sketch10.MapMode = "FlatFace"
sketch10.AttachmentOffset = App.Placement(V(0, 0, 8), App.Rotation())
sketch10.addGeometry(Part.Circle(V(7, 24.8, 0), V(0, 0, 1), 1), False)
sketch10.addGeometry(Part.Circle(V(31.7, 25.5, 0), V(0, 0, 1), 1), False)
sketch10.addGeometry(Part.Circle(V(48.3, 25.5, 0), V(0, 0, 1), 1), False)
sketch10.addGeometry(Part.Circle(V(73, 24.8, 0), V(0, 0, 1), 1), False)
sketch10.addConstraint(Sketcher.Constraint("Equal", 0, 1))
sketch10.addConstraint(Sketcher.Constraint("Equal", 1, 2))
sketch10.addConstraint(Sketcher.Constraint("Equal", 2, 3))
sketch10.addConstraint(Sketcher.Constraint("Horizontal", 1, 3, 2, 3))
sketch10.addConstraint(Sketcher.Constraint("Horizontal", 0, 3, 3, 3))
sketch10.addConstraint(Sketcher.Constraint("Diameter", 0, 2.0))
sketch10.addConstraint(Sketcher.Constraint("DistanceX", -1, 1, 0, 3, 7.0))
sketch10.addConstraint(Sketcher.Constraint("DistanceX", -1, 1, 3, 3, 73.0))
sketch10.addConstraint(Sketcher.Constraint("DistanceY", -1, 1, 1, 3, 25.54044))
sketch10.addConstraint(Sketcher.Constraint("DistanceY", -1, 1, 0, 3, 24.833333))
sketch10.addConstraint(Sketcher.Constraint("DistanceX", -1, 1, 1, 3, 31.707107))
sketch10.addConstraint(Sketcher.Constraint("DistanceX", -1, 1, 2, 3, 48.292893))
pocket8 = doc.addObject("PartDesign::Pocket", "Pocket007")
body.addObject(pocket8)
pocket8.Profile = sketch10
pocket8.Length = 1

# Sketch on XY plane
sketch11 = doc.addObject("Sketcher::SketchObject", "Sketch010")
body.addObject(sketch11)
sketch11.AttachmentSupport = (doc.XY_Plane, [""])
sketch11.MapMode = "FlatFace"
sketch11.AttachmentOffset = App.Placement(V(0, 0, 8), App.Rotation())
sketch11.addGeometry(Part.LineSegment(V(0, 1, 0), V(0, -19, 0)), False)
sketch11.addGeometry(Part.LineSegment(V(0, -19, 0), V(80, -19, 0)), False)
sketch11.addGeometry(Part.LineSegment(V(80, -19, 0), V(80, 1, 0)), False)
sketch11.addGeometry(Part.LineSegment(V(80, 1, 0), V(0, 1, 0)), False)
sketch11.addConstraint(Sketcher.Constraint("Coincident", 0, 2, 1, 1))
sketch11.addConstraint(Sketcher.Constraint("Coincident", 1, 2, 2, 1))
sketch11.addConstraint(Sketcher.Constraint("Coincident", 2, 2, 3, 1))
sketch11.addConstraint(Sketcher.Constraint("Coincident", 3, 2, 0, 1))
sketch11.addConstraint(Sketcher.Constraint("Vertical", 0))
sketch11.addConstraint(Sketcher.Constraint("Horizontal", 1))
sketch11.addConstraint(Sketcher.Constraint("Vertical", 2))
sketch11.addConstraint(Sketcher.Constraint("Horizontal", 3))
sketch11.addConstraint(Sketcher.Constraint("PointOnObject", 0, 2, -2))
sketch11.addConstraint(Sketcher.Constraint("DistanceX", 1, 1, 1, 2, 80.0))
sketch11.addConstraint(Sketcher.Constraint("DistanceY", 0, 2, 0, 1, 20.0))
sketch11.addConstraint(Sketcher.Constraint("DistanceY", 0, 2, -1, 1, 19.166667))
pocket9 = doc.addObject("PartDesign::Pocket", "Pocket008")
body.addObject(pocket9)
pocket9.Profile = sketch11
pocket9.Type = "UpToFirst"

doc.recompute()
